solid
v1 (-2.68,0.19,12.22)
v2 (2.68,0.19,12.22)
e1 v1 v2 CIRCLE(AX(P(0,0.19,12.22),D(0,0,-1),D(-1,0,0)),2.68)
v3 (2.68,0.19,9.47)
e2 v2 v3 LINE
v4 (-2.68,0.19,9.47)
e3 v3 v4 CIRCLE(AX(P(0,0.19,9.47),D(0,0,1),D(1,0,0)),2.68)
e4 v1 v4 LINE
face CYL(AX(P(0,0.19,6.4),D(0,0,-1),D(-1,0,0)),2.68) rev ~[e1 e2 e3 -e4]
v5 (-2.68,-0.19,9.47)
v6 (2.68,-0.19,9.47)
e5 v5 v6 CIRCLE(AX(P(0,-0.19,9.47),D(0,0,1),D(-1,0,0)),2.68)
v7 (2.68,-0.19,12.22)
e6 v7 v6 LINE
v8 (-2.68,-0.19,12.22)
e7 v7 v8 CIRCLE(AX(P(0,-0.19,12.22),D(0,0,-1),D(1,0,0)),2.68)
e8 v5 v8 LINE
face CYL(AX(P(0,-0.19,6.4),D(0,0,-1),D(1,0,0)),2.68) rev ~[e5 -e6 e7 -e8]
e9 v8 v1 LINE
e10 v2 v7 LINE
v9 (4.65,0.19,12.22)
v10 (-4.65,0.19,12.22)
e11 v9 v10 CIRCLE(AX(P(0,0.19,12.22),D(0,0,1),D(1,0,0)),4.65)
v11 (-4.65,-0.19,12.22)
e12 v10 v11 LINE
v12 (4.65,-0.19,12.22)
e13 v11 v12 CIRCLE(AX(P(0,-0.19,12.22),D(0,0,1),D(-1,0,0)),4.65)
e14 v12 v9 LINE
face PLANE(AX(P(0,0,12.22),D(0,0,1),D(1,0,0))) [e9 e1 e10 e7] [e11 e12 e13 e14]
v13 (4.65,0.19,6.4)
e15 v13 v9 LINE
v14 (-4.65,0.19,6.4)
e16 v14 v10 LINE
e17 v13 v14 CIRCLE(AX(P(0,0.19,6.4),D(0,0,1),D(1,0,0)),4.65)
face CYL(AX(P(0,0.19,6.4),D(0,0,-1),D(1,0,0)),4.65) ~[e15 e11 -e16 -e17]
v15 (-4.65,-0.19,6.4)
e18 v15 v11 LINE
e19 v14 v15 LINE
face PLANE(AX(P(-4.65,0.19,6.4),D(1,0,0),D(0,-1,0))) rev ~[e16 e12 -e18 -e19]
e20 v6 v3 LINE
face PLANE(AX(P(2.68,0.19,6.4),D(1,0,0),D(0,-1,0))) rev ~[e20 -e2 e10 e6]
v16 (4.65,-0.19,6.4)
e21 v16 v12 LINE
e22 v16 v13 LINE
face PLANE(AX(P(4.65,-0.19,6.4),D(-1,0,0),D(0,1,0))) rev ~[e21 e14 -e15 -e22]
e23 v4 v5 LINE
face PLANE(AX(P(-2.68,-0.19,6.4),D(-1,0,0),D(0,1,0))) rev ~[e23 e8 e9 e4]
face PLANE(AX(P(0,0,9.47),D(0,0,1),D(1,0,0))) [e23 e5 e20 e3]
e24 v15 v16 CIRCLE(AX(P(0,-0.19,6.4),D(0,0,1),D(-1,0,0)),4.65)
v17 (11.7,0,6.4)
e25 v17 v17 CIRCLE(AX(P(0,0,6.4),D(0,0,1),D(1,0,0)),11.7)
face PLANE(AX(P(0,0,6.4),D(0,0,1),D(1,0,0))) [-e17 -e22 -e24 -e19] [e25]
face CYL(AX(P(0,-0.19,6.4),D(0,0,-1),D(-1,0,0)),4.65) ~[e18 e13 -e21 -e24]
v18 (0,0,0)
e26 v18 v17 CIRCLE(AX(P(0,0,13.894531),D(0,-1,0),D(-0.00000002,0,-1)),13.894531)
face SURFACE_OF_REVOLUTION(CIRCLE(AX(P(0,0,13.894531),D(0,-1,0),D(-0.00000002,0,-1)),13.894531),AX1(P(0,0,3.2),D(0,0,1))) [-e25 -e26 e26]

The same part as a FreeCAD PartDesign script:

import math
import FreeCAD as App
import Part
import Sketcher
from FreeCAD import Vector
Q = App.Units.Quantity

doc = App.newDocument("Part")
body = doc.addObject("PartDesign::Body", "Body")

sketch1 = doc.addObject("Sketcher::SketchObject", "Sketch")
body.addObject(sketch1)
sketch1.AttachmentSupport = (doc.XZ_Plane, [""])
sketch1.MapMode = "FlatFace"
sketch1.addGeometry([
    Part.LineSegment(Vector(0, 6, 0), Vector(0, 0, 0)),
    Part.ArcOfCircle(Part.Circle(Vector(0, 14, 0), Vector(0, 0, 1), 14), math.radians(-90), math.radians(-33)),
    Part.LineSegment(Vector(12, 6, 0), Vector(0, 6, 0)),
], False)
sketch1.addConstraint([
    Sketcher.Constraint("Coincident", 0, 2, 1, 1),
    Sketcher.Constraint("Coincident", 1, 2, 2, 1),
    Sketcher.Constraint("Coincident", 2, 2, 0, 1),
    Sketcher.Constraint("Vertical", 0),
    Sketcher.Constraint("Horizontal", 2),
    Sketcher.Constraint("Coincident", 0, 2, -1, 1),
    Sketcher.Constraint("PointOnObject", 1, 3, -2),
    Sketcher.Constraint("DistanceX", 2, 2, 2, 1, Q("11.7 mm")),
    Sketcher.Constraint("DistanceY", 0, 2, 0, 1, Q("6.4 mm")),
])
revolution = doc.addObject("PartDesign::Revolution", "Revolution")
body.addObject(revolution)
revolution.Profile = sketch1
revolution.ReferenceAxis = (sketch1, ["V_Axis"])
revolution.Angle = 360

sketch2 = doc.addObject("Sketcher::SketchObject", "Sketch001")
body.addObject(sketch2)
sketch2.AttachmentSupport = (doc.XY_Plane, [""])
sketch2.MapMode = "FlatFace"
sketch2.AttachmentOffset = App.Placement(Vector(0, 0, 6.4), App.Rotation())
sketch2.addGeometry([
    Part.LineSegment(Vector(4.65, -0.19, 0), Vector(4.65, 0.19, 0)),
    Part.ArcOfCircle(Part.Circle(Vector(0, 0.19, 0), Vector(0, 0, 1), 4.65), math.radians(0), math.radians(180)),
    Part.LineSegment(Vector(-4.65, 0.19, 0), Vector(-4.65, -0.19, 0)),
    Part.ArcOfCircle(Part.Circle(Vector(0, -0.19, 0), Vector(0, 0, 1), 4.65), math.radians(180), math.radians(360)),
    Part.ArcOfCircle(Part.Circle(Vector(0, -0.19, 0), Vector(0, 0, 1), 2.68), math.radians(180), math.radians(360)),
    Part.LineSegment(Vector(-2.68, -0.19, 0), Vector(-2.68, 0.19, 0)),
    Part.ArcOfCircle(Part.Circle(Vector(0, 0.19, 0), Vector(0, 0, 1), 2.68), math.radians(0), math.radians(180)),
    Part.LineSegment(Vector(2.68, 0.19, 0), Vector(2.68, -0.19, 0)),
], False)
sketch2.addConstraint([
    Sketcher.Constraint("Tangent", 0, 2, 1, 1),
    Sketcher.Constraint("Tangent", 1, 2, 2, 1),
    Sketcher.Constraint("Tangent", 2, 2, 3, 1),
    Sketcher.Constraint("Tangent", 3, 2, 0, 1),
    Sketcher.Constraint("Tangent", 4, 1, 5, 1),
    Sketcher.Constraint("Tangent", 5, 2, 6, 2),
    Sketcher.Constraint("Tangent", 6, 1, 7, 1),
    Sketcher.Constraint("Tangent", 7, 2, 4, 2),
    Sketcher.Constraint("Vertical", 0),
    Sketcher.Constraint("Vertical", 2),
    Sketcher.Constraint("Vertical", 5),
    Sketcher.Constraint("Vertical", 7),
    Sketcher.Constraint("Coincident", 4, 3, 3, 3),
    Sketcher.Constraint("Symmetric", 1, 3, 3, 3, -1, 1),
    Sketcher.Constraint("Horizontal", 6, 3, 0, 2),
    Sketcher.Constraint("Radius", 1, Q("4.65 mm")),
    Sketcher.Constraint("Radius", 4, Q("2.68 mm")),
    Sketcher.Constraint("DistanceY", 0, 1, 0, 2, Q("0.38 mm")),
])
pad1 = doc.addObject("PartDesign::Pad", "Pad")
body.addObject(pad1)
pad1.Profile = sketch2
pad1.Length = 5.82

sketch3 = doc.addObject("Sketcher::SketchObject", "Sketch002")
body.addObject(sketch3)
sketch3.AttachmentSupport = (doc.XY_Plane, [""])
sketch3.MapMode = "FlatFace"
sketch3.AttachmentOffset = App.Placement(Vector(0, 0, 12.22), App.Rotation())
sketch3.addGeometry([
    Part.ArcOfCircle(Part.Circle(Vector(0, 0.19, 0), Vector(0, 0, 1), 2.68), math.radians(0), math.radians(180)),
    Part.LineSegment(Vector(-2.68, 0.19, 0), Vector(-2.68, -0.19, 0)),
    Part.ArcOfCircle(Part.Circle(Vector(0, -0.19, 0), Vector(0, 0, 1), 2.68), math.radians(180), math.radians(360)),
    Part.LineSegment(Vector(2.68, -0.19, 0), Vector(2.68, 0.19, 0)),
], False)
sketch3.addConstraint([
    Sketcher.Constraint("Tangent", 0, 2, 1, 1),
    Sketcher.Constraint("Tangent", 1, 2, 2, 1),
    Sketcher.Constraint("Tangent", 2, 2, 3, 1),
    Sketcher.Constraint("Tangent", 3, 2, 0, 1),
    Sketcher.Constraint("Vertical", 1),
    Sketcher.Constraint("Vertical", 3),
    Sketcher.Constraint("Symmetric", 0, 3, 2, 3, -1, 1),
    Sketcher.Constraint("Radius", 0, Q("2.68 mm")),
    Sketcher.Constraint("DistanceY", 1, 2, 1, 1, Q("0.38 mm")),
])
pocket1 = doc.addObject("PartDesign::Pocket", "Pocket")
body.addObject(pocket1)
pocket1.Profile = sketch3
pocket1.Length = 7.75

sketch4 = doc.addObject("Sketcher::SketchObject", "Sketch003")
body.addObject(sketch4)
sketch4.AttachmentSupport = (doc.XY_Plane, [""])
sketch4.MapMode = "FlatFace"
sketch4.AttachmentOffset = App.Placement(Vector(0, 0, 4.47), App.Rotation())
sketch4.addGeometry([
    Part.ArcOfCircle(Part.Circle(Vector(0, 0.19, 0), Vector(0, 0, 1), 2.68), math.radians(0), math.radians(180)),
    Part.LineSegment(Vector(-2.68, 0.19, 0), Vector(-2.68, -0.19, 0)),
    Part.ArcOfCircle(Part.Circle(Vector(0, -0.19, 0), Vector(0, 0, 1), 2.68), math.radians(180), math.radians(360)),
    Part.LineSegment(Vector(2.68, -0.19, 0), Vector(2.68, 0.19, 0)),
], False)
sketch4.addConstraint([
    Sketcher.Constraint("Tangent", 0, 2, 1, 1),
    Sketcher.Constraint("Tangent", 1, 2, 2, 1),
    Sketcher.Constraint("Tangent", 2, 2, 3, 1),
    Sketcher.Constraint("Tangent", 3, 2, 0, 1),
    Sketcher.Constraint("Vertical", 1),
    Sketcher.Constraint("Vertical", 3),
    Sketcher.Constraint("Symmetric", 0, 3, 2, 3, -1, 1),
    Sketcher.Constraint("Radius", 0, Q("2.68 mm")),
    Sketcher.Constraint("DistanceY", 1, 2, 1, 1, Q("0.38 mm")),
])
pad2 = doc.addObject("PartDesign::Pad", "Pad001")
body.addObject(pad2)
pad2.Profile = sketch4
pad2.Length = 5

doc.recompute()
